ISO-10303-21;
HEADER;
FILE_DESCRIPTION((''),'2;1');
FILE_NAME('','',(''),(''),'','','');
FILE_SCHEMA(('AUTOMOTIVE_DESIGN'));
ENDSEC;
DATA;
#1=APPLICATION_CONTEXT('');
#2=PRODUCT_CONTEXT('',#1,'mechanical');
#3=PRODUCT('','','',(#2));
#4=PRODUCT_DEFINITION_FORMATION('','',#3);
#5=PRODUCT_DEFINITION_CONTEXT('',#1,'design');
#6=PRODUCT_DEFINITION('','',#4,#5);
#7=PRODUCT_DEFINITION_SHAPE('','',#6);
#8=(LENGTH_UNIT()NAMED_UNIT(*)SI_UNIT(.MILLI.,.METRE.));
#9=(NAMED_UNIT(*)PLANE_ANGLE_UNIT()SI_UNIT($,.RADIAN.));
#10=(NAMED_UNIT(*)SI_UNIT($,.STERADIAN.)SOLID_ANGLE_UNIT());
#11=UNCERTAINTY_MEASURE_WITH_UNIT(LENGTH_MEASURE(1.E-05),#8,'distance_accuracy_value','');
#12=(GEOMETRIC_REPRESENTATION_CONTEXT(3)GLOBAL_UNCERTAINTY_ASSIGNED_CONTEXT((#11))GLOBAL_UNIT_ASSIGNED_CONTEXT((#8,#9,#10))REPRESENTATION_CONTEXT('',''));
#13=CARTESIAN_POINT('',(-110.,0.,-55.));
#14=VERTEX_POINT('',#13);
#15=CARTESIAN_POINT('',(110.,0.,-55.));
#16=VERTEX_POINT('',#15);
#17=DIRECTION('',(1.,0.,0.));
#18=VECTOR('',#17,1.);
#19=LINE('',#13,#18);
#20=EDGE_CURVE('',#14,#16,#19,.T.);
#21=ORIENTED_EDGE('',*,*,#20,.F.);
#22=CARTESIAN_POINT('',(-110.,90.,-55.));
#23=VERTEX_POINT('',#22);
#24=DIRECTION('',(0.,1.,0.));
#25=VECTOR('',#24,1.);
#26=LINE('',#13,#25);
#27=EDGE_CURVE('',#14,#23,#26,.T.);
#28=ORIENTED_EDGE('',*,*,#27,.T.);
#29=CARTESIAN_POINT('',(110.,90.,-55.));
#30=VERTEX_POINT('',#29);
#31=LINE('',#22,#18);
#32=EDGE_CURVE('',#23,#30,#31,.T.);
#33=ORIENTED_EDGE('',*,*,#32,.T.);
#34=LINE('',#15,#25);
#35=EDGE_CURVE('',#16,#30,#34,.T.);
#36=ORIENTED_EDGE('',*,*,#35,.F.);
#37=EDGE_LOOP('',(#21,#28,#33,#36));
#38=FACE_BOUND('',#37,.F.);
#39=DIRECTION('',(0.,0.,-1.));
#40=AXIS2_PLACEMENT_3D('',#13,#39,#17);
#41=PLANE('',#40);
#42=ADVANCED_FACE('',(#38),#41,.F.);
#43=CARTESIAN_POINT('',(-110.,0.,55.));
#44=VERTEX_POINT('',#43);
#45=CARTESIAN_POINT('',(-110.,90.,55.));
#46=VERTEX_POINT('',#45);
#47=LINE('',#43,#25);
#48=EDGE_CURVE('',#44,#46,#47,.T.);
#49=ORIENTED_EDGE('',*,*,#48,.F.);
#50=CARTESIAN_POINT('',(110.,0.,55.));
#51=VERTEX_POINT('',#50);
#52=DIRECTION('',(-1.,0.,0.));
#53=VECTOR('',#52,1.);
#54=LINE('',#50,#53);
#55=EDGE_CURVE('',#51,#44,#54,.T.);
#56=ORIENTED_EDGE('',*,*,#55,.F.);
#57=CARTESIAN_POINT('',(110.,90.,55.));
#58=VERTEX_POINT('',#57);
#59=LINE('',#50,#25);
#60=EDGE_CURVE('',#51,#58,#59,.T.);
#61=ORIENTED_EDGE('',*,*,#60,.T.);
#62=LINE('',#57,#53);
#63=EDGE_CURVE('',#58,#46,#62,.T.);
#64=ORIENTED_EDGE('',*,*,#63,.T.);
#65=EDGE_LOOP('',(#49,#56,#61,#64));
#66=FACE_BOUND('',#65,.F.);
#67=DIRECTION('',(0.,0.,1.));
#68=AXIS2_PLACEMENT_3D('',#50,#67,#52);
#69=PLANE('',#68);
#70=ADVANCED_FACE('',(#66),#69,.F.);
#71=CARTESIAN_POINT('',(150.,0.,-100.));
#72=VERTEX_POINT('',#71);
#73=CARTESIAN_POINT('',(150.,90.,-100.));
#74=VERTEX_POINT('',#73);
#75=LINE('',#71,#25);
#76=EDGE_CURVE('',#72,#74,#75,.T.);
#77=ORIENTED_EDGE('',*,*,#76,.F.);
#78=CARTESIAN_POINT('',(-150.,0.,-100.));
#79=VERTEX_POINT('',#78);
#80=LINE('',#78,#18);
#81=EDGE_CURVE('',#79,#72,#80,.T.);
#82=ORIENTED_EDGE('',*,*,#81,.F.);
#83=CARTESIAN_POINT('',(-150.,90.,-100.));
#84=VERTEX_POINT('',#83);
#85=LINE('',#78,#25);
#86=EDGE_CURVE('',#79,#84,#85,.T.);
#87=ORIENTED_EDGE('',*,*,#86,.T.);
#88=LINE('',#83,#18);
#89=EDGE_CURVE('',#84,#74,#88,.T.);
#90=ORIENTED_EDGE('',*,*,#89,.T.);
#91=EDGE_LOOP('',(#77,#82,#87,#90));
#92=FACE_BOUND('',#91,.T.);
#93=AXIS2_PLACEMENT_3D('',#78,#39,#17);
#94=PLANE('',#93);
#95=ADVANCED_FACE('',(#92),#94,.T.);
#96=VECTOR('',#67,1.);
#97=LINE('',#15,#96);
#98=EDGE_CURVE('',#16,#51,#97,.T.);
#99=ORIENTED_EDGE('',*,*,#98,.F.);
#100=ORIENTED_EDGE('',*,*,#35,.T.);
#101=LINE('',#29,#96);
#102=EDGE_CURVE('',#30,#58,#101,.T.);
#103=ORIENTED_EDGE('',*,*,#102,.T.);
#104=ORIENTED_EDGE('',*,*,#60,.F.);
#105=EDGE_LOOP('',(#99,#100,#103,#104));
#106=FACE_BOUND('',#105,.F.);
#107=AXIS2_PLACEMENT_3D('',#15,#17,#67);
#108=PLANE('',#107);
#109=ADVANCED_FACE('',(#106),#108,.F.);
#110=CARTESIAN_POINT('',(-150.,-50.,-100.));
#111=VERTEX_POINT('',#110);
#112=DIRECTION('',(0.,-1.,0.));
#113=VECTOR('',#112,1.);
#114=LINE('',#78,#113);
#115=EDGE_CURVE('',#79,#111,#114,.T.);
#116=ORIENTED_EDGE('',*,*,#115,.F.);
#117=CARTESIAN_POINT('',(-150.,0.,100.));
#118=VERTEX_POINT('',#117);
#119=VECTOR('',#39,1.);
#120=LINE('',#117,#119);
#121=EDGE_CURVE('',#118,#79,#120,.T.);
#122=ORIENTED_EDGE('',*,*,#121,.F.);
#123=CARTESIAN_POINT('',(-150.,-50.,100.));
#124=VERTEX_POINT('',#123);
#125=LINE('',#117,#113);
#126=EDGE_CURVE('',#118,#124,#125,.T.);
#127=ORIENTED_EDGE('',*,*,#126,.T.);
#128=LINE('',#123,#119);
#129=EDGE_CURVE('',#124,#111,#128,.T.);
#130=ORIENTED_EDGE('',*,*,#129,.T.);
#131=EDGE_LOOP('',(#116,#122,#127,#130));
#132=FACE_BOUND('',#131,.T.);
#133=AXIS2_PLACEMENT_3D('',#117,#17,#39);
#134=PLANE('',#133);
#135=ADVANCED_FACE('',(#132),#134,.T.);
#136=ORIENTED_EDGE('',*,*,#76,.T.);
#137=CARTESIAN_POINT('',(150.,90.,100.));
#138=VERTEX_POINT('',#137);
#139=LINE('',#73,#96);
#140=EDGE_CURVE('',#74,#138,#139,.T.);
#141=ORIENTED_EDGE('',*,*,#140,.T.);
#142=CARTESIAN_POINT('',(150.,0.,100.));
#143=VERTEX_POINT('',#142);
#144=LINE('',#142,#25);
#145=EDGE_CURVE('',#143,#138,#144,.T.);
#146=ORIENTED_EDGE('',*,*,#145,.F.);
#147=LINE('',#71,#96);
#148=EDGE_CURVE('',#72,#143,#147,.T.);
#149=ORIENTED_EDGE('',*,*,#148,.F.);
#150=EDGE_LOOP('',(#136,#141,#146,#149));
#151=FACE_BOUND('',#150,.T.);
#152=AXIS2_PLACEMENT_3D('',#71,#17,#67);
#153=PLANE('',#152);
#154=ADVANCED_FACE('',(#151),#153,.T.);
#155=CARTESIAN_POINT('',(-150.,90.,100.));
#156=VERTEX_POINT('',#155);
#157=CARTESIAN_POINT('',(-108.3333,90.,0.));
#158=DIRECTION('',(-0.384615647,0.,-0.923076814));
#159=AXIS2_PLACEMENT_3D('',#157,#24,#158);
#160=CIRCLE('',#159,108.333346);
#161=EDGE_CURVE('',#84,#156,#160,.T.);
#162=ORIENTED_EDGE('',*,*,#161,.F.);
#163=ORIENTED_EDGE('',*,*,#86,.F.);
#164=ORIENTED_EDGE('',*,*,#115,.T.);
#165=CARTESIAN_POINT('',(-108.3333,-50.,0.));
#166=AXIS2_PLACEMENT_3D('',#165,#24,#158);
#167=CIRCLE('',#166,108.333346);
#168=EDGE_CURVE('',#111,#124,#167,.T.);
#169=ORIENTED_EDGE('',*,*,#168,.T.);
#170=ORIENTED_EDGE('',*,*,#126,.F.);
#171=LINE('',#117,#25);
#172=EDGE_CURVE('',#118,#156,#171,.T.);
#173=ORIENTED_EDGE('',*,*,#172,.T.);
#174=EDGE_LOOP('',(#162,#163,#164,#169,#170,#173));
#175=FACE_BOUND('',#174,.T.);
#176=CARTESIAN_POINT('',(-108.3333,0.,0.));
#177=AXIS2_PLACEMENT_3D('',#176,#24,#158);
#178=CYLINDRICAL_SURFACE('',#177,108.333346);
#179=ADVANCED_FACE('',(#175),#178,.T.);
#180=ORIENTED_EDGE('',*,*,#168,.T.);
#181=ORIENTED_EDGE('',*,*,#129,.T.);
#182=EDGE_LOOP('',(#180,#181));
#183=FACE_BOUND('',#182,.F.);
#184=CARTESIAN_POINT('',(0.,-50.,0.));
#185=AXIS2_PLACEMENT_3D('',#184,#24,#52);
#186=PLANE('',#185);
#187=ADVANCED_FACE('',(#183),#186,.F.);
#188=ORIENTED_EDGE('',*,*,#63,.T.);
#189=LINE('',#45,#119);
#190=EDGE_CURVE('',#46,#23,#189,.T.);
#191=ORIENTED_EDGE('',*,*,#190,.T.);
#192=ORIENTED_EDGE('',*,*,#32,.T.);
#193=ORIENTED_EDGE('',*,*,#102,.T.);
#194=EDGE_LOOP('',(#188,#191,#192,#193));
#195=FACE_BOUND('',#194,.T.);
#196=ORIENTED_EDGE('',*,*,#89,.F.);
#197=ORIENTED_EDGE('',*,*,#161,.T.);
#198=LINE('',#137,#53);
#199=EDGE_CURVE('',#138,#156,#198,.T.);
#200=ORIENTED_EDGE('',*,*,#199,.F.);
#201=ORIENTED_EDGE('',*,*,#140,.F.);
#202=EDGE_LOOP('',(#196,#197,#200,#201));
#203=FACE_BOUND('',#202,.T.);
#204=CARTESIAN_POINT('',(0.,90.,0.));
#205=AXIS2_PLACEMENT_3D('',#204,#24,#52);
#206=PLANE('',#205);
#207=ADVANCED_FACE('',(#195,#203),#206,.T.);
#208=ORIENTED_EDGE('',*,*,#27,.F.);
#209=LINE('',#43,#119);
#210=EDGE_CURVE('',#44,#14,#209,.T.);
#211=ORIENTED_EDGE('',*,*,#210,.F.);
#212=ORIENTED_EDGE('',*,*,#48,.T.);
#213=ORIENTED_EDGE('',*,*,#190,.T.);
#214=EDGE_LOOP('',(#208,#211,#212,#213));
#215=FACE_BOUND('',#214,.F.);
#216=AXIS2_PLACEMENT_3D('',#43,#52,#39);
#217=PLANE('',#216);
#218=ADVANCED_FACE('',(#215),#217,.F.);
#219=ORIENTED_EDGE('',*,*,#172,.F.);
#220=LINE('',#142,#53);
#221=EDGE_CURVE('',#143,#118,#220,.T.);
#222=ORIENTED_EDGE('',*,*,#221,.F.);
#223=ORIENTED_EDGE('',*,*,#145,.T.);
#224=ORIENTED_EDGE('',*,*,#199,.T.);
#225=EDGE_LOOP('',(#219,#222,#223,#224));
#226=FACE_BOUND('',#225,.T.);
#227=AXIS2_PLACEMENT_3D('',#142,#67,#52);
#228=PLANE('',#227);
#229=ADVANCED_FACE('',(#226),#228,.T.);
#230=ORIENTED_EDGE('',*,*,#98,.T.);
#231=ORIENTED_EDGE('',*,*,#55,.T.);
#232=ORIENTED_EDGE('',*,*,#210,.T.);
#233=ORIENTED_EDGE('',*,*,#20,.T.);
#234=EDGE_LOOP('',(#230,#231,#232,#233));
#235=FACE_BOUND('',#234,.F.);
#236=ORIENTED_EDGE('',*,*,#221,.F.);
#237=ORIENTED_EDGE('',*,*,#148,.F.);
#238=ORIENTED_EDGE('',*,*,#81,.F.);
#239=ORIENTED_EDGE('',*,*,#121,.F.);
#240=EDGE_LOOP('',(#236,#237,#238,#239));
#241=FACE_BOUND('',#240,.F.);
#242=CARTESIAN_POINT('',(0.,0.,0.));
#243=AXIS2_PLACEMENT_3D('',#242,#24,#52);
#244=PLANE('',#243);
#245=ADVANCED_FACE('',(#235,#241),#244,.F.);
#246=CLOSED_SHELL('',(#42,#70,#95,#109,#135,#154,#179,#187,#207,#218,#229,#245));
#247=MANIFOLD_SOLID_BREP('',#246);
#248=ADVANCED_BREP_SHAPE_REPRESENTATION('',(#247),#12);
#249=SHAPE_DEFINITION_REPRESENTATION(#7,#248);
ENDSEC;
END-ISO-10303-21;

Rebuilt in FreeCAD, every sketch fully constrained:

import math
import FreeCAD as App
import Part
import Sketcher
Q = App.Units.Quantity

doc = App.newDocument("Part")
params = doc.addObject("Spreadsheet::Sheet", "Params")
for row, (alias, value) in enumerate([
    ("sketch1_width", "300 mm"),
    ("sketch1_width2", "220 mm"),
    ("sketch1_height", "200 mm"),
    ("sketch1_height2", "110 mm"),
    ("pad1_length", "90 mm"),
    ("sketch2_height", "200 mm"),
    ("pad2_length", "50 mm"),
], start=1):
    params.set(f"A{row}", alias)
    params.set(f"B{row}", "=" + value)
    params.setAlias(f"B{row}", alias)

body = doc.addObject("PartDesign::Body", "Body")

# Sketch on XZ plane
sketch1 = doc.addObject("Sketcher::SketchObject", "Sketch")
body.addObject(sketch1)
sketch1.AttachmentSupport = (doc.XZ_Plane, [""])
sketch1.MapMode = "FlatFace"
sketch1.addGeometry([
    Part.LineSegment(App.Vector(-150, 100, 0), App.Vector(150, 100, 0)),  # 0
    Part.LineSegment(App.Vector(150, 100, 0), App.Vector(150, -100, 0)),  # 1
    Part.LineSegment(App.Vector(150, -100, 0), App.Vector(-150, -100, 0)),  # 2
    Part.ArcOfCircle(Part.Circle(App.Vector(-108.3333, 0, 0), App.Vector(0, 0, 1), 108.333346), math.radians(112.619881), math.radians(247.380119)),  # 3
    Part.LineSegment(App.Vector(110, -55, 0), App.Vector(110, 55, 0)),  # 4
    Part.LineSegment(App.Vector(110, 55, 0), App.Vector(-110, 55, 0)),  # 5
    Part.LineSegment(App.Vector(-110, 55, 0), App.Vector(-110, -55, 0)),  # 6
    Part.LineSegment(App.Vector(-110, -55, 0), App.Vector(110, -55, 0)),  # 7
], False)
sketch1.addConstraint([
    Sketcher.Constraint("Coincident", 0, 2, 1, 1),
    Sketcher.Constraint("Coincident", 1, 2, 2, 1),
    Sketcher.Constraint("Coincident", 2, 2, 3, 2),
    Sketcher.Constraint("Coincident", 3, 1, 0, 1),
    Sketcher.Constraint("Coincident", 4, 2, 5, 1),
    Sketcher.Constraint("Coincident", 5, 2, 6, 1),
    Sketcher.Constraint("Coincident", 6, 2, 7, 1),
    Sketcher.Constraint("Coincident", 7, 2, 4, 1),
    Sketcher.Constraint("Horizontal", 0),
    Sketcher.Constraint("Vertical", 1),
    Sketcher.Constraint("Horizontal", 2),
    Sketcher.Constraint("Vertical", 4),
    Sketcher.Constraint("Horizontal", 5),
    Sketcher.Constraint("Vertical", 6),
    Sketcher.Constraint("Horizontal", 7),
    Sketcher.Constraint("Symmetric", 0, 2, 2, 2, -1, 1),
    Sketcher.Constraint("Symmetric", 4, 2, 6, 2, -1, 1),
    Sketcher.Constraint("PointOnObject", 3, 3, -1),
    Sketcher.Constraint("DistanceX", 0, 1, 0, 2, Q("300 mm")),
    Sketcher.Constraint("DistanceX", 5, 2, 5, 1, Q("220 mm")),
    Sketcher.Constraint("DistanceY", 1, 2, 1, 1, Q("200 mm")),
    Sketcher.Constraint("DistanceY", 4, 1, 4, 2, Q("110 mm")),
    Sketcher.Constraint("Radius", 3, Q("108.3333 mm")),
])
sketch1.setExpression("Constraints[18]", "Params.sketch1_width")
sketch1.setExpression("Constraints[19]", "Params.sketch1_width2")
sketch1.setExpression("Constraints[20]", "Params.sketch1_height")
sketch1.setExpression("Constraints[21]", "Params.sketch1_height2")
pad1 = doc.addObject("PartDesign::Pad", "Pad")
body.addObject(pad1)
pad1.Profile = sketch1
pad1.setExpression("Length", "Params.pad1_length")
pad1.Reversed = True

# Sketch on XZ plane
sketch2 = doc.addObject("Sketcher::SketchObject", "Sketch001")
body.addObject(sketch2)
sketch2.AttachmentSupport = (doc.XZ_Plane, [""])
sketch2.MapMode = "FlatFace"
sketch2.addGeometry([
    Part.ArcOfCircle(Part.Circle(App.Vector(-108.3333, 0, 0), App.Vector(0, 0, 1), 108.333346), math.radians(112.619881), math.radians(247.380119)),
    Part.LineSegment(App.Vector(-150, 100, 0), App.Vector(-150, -100, 0)),
], False)
sketch2.addConstraint([
    Sketcher.Constraint("Coincident", 0, 1, 1, 1),
    Sketcher.Constraint("Coincident", 1, 2, 0, 2),
    Sketcher.Constraint("Vertical", 1),
    Sketcher.Constraint("PointOnObject", 0, 3, -1),
    Sketcher.Constraint("DistanceY", 1, 2, 1, 1, Q("200 mm")),
    Sketcher.Constraint("DistanceX", 0, 1, -1, 1, Q("150 mm")),
    Sketcher.Constraint("Radius", 0, Q("108.3333 mm")),
])
sketch2.setExpression("Constraints[4]", "Params.sketch2_height")
pad2 = doc.addObject("PartDesign::Pad", "Pad001")
body.addObject(pad2)
pad2.Profile = sketch2
pad2.setExpression("Length", "Params.pad2_length")

doc.recompute()
